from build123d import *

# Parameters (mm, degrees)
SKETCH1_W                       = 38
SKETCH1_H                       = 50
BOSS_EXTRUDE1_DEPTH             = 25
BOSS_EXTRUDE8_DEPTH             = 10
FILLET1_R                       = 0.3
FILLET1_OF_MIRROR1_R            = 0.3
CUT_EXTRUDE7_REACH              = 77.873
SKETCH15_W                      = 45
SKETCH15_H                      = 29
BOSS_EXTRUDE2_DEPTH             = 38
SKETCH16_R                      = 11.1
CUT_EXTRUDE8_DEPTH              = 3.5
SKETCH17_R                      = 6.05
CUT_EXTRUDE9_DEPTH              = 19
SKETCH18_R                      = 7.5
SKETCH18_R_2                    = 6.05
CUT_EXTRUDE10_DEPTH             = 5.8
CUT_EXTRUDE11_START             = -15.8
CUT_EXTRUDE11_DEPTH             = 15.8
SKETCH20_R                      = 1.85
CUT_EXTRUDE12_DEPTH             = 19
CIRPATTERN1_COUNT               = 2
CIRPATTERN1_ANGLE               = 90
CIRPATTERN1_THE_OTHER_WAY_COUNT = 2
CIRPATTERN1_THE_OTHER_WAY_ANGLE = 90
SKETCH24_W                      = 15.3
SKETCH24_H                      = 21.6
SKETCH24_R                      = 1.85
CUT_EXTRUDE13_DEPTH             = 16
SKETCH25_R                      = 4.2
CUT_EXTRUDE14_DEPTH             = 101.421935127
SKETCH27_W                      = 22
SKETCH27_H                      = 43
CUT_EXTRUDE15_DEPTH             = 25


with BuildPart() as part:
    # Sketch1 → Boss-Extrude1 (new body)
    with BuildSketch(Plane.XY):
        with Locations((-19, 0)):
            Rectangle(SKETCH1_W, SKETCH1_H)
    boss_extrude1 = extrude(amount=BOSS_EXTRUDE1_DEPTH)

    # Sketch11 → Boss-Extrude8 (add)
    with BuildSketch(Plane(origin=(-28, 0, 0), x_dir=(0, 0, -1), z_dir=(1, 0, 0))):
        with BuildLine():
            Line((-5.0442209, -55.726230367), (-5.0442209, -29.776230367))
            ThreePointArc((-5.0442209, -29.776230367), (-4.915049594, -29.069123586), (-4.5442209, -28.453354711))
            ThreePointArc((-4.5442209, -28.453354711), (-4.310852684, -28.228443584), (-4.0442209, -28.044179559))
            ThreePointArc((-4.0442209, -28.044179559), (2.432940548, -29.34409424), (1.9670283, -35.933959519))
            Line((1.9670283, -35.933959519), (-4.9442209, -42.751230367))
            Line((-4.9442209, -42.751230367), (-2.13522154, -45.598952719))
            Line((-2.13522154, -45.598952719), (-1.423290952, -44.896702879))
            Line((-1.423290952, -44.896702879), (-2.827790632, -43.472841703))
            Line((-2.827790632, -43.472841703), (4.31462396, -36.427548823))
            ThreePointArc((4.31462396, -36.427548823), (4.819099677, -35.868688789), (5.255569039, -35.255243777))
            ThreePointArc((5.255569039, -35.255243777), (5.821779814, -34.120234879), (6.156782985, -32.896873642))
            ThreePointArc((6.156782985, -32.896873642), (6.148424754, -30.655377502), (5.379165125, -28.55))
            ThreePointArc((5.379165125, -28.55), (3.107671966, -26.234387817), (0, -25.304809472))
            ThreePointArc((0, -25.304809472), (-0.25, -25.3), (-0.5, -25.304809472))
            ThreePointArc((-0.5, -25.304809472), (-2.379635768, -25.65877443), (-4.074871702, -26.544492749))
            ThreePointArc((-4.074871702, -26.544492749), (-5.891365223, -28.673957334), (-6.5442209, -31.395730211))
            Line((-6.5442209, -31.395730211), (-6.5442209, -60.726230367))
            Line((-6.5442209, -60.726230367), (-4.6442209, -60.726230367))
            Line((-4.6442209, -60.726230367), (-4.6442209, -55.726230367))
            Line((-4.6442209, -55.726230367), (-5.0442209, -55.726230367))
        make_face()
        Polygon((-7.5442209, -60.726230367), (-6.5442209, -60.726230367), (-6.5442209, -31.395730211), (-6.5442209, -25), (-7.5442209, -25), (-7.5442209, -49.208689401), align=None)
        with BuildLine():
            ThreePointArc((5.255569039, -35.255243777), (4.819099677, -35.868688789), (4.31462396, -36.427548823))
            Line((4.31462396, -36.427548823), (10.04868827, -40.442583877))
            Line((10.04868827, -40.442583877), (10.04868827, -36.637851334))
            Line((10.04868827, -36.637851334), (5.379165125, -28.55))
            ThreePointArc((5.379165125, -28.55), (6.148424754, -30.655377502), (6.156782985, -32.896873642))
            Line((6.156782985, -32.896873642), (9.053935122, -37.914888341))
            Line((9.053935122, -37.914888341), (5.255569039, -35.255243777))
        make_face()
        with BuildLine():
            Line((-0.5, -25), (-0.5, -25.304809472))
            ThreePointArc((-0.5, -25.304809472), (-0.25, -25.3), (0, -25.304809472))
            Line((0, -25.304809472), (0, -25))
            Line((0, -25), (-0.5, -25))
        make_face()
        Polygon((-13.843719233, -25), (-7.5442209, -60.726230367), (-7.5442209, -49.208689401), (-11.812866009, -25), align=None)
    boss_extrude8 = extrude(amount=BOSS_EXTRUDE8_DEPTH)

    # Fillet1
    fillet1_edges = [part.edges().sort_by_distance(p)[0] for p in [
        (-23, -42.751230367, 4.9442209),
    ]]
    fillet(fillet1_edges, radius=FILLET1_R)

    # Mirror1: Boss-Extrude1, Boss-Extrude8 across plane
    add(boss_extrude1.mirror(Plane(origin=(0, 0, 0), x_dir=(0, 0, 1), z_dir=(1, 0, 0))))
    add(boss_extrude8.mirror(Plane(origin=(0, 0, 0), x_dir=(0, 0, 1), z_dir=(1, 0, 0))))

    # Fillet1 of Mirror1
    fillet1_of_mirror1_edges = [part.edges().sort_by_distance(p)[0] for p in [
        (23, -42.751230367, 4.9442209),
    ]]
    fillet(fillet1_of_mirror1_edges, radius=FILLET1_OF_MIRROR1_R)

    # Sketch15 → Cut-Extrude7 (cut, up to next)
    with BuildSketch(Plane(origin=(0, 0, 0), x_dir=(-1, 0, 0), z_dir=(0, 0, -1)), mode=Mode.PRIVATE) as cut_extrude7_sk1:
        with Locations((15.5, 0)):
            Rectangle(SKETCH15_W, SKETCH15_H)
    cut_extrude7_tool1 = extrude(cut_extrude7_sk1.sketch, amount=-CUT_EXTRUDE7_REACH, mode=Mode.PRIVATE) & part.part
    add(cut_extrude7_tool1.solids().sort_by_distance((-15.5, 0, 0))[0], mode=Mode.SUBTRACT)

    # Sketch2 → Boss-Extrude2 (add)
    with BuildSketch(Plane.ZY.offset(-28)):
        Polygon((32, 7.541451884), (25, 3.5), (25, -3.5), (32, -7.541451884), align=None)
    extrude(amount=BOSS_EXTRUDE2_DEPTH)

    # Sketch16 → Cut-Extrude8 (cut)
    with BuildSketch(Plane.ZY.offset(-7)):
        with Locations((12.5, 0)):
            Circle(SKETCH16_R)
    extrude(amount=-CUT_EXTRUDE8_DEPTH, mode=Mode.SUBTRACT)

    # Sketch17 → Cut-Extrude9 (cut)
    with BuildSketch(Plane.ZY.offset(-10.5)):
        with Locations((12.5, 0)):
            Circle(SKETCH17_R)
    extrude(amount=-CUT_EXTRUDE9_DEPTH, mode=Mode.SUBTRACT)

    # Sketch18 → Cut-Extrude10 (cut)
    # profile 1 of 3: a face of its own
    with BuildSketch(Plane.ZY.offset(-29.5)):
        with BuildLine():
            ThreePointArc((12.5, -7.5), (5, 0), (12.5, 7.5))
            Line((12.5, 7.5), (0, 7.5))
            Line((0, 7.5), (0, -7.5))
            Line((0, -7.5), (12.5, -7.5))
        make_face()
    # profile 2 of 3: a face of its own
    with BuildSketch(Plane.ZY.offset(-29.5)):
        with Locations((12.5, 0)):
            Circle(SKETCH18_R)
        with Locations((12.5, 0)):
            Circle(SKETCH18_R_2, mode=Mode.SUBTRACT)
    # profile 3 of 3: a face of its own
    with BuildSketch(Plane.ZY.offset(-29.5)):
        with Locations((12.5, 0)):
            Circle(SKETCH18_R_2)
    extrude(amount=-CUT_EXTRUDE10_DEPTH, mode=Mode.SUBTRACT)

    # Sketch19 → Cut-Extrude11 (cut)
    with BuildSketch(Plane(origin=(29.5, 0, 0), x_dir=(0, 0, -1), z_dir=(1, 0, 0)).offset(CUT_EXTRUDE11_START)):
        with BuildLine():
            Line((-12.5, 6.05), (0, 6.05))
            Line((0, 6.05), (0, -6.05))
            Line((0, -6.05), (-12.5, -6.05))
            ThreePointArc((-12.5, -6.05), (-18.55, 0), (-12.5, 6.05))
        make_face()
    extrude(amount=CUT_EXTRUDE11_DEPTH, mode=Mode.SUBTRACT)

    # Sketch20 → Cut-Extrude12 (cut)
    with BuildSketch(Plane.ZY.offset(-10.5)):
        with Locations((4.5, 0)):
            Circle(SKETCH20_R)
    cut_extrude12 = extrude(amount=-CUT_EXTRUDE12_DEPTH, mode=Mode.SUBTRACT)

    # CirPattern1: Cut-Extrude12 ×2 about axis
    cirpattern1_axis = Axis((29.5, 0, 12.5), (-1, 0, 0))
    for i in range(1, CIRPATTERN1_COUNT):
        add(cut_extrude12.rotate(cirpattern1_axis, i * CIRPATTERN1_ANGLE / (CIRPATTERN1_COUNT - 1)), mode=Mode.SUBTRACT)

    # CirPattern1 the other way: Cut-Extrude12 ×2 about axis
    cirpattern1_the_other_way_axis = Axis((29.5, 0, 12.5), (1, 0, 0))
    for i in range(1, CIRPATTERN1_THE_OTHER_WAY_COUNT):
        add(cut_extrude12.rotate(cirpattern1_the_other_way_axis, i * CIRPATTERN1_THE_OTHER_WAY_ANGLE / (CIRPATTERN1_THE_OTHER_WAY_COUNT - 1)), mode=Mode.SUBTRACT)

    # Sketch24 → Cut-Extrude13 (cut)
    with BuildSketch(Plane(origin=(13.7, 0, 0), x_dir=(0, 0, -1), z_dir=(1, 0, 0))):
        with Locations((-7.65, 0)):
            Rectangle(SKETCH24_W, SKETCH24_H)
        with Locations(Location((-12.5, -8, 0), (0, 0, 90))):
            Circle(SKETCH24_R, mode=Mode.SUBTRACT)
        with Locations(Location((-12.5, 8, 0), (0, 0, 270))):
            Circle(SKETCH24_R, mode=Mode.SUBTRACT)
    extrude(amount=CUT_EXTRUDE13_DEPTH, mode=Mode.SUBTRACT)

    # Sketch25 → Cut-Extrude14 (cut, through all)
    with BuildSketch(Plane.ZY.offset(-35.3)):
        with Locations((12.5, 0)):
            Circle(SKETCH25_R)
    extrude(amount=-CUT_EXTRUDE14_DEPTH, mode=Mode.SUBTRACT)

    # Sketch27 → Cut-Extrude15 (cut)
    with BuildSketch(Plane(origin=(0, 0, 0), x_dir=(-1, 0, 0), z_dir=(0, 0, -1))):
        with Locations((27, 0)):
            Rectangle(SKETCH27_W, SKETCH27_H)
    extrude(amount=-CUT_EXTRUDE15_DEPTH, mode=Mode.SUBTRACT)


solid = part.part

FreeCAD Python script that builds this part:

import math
import FreeCAD as App
import Part
import Sketcher
Q = App.Units.Quantity


def edges_at(feature, points):
    """Names of the edges that pass closest to the given points."""
    edges = feature.Shape.Edges
    near = lambda p: min(range(len(edges)), key=lambda i: edges[i].distToShape(Part.Vertex(*p))[0])
    return sorted({f"Edge{near(p) + 1}" for p in points})

doc = App.newDocument("Part")
params = doc.addObject("Spreadsheet::Sheet", "Params")
for row, (alias, value) in enumerate([
    ("sketch1_width", "38 mm"),
    ("sketch1_height", "50 mm"),
    ("pad1_length", "25 mm"),
    ("sketch2_radius", "2 mm"),
    ("sketch2_radius2", "5 mm"),
    ("sketch2_radius3", "6 mm"),
    ("sketch2_radius4", "6.5 mm"),
    ("sketch2_width", "5 mm"),
    ("pad2_length", "10 mm"),
    ("fillet_radius", "0.3 mm"),
    ("fillet2_radius", "0.3 mm"),
    ("sketch3_width", "45 mm"),
    ("sketch3_height", "29 mm"),
    ("sketch4_width", "7 mm"),
    ("pad3_length", "38 mm"),
    ("sketch5_diameter", "22.2 mm"),
    ("pocket2_length", "3.5 mm"),
    ("sketch6_diameter", "12.1 mm"),
    ("pocket3_length", "19 mm"),
    ("sketch7_radius", "7.5 mm"),
    ("sketch7_height", "12.5 mm"),
    ("pocket4_length", "5.8 mm"),
    ("sketch8_radius", "6.05 mm"),
    ("sketch8_height", "12.5 mm"),
    ("pocket5_length", "15.8 mm"),
    ("sketch9_diameter", "3.7 mm"),
    ("pocket6_length", "19 mm"),
    ("sketch10_diameter", "3.7 mm"),
    ("sketch10_width", "21.6 mm"),
    ("sketch10_height", "15.3 mm"),
    ("pocket7_length", "16 mm"),
    ("sketch11_diameter", "8.4 mm"),
    ("sketch12_width", "22 mm"),
    ("sketch12_height", "43 mm"),
    ("pocket9_length", "25 mm"),
], start=1):
    params.set(f"A{row}", alias)
    params.set(f"B{row}", "=" + value)
    params.setAlias(f"B{row}", alias)

body = doc.addObject("PartDesign::Body", "Body")

# Sketch on XY plane
sketch1 = body.newObject("Sketcher::SketchObject", "Sketch")
sketch1.AttachmentSupport = (doc.getObject("XY_Plane"), [""])
sketch1.MapMode = "FlatFace"
sketch1.addGeometry(Part.LineSegment(App.Vector(-38, 25, 0), App.Vector(-38, -25, 0)), False)
sketch1.addGeometry(Part.LineSegment(App.Vector(-38, -25, 0), App.Vector(0, -25, 0)), False)
sketch1.addGeometry(Part.LineSegment(App.Vector(0, -25, 0), App.Vector(0, 25, 0)), False)
sketch1.addGeometry(Part.LineSegment(App.Vector(0, 25, 0), App.Vector(-38, 25, 0)), False)
sketch1.addConstraint(Sketcher.Constraint("Coincident", 0, 2, 1, 1))
sketch1.addConstraint(Sketcher.Constraint("Coincident", 1, 2, 2, 1))
sketch1.addConstraint(Sketcher.Constraint("Coincident", 2, 2, 3, 1))
sketch1.addConstraint(Sketcher.Constraint("Coincident", 3, 2, 0, 1))
sketch1.addConstraint(Sketcher.Constraint("Vertical", 0))
sketch1.addConstraint(Sketcher.Constraint("Horizontal", 1))
sketch1.addConstraint(Sketcher.Constraint("Vertical", 2))
sketch1.addConstraint(Sketcher.Constraint("Horizontal", 3))
sketch1.addConstraint(Sketcher.Constraint("Symmetric", 1, 2, 2, 2, -1, 1))
sketch1.addConstraint(Sketcher.Constraint("DistanceX", 1, 1, 1, 2, 38.0))
sketch1.addConstraint(Sketcher.Constraint("DistanceY", 0, 2, 0, 1, 50.0))
sketch1.setExpression("Constraints[9]", "Params.sketch1_width")
sketch1.setExpression("Constraints[10]", "Params.sketch1_height")
pad1 = body.newObject("PartDesign::Pad", "Pad")
pad1.Profile = sketch1
pad1.setExpression("Length", "Params.pad1_length")

# Sketch on YZ plane
sketch2 = body.newObject("Sketcher::SketchObject", "Sketch001")
sketch2.AttachmentSupport = (doc.getObject("YZ_Plane"), [""])
sketch2.MapMode = "FlatFace"
sketch2.AttachmentOffset = App.Placement(App.Vector(0, 0, -28), App.Rotation())
sketch2.addGeometry(Part.LineSegment(App.Vector(-55.73, 5.04, 0), App.Vector(-29.78, 5.04, 0)), False)
sketch2.addGeometry(Part.ArcOfCircle(Part.Circle(App.Vector(-29.78, 3.04, 0), App.Vector(0, 0, 1), 2), math.radians(49), math.radians(90)), False)
sketch2.addGeometry(Part.ArcOfCircle(Part.Circle(App.Vector(-29.78, 3.04, 0), App.Vector(0, 0, 1), 2), math.radians(30), math.radians(48.59)), False)
sketch2.addGeometry(Part.ArcOfCircle(Part.Circle(App.Vector(-32.37, 1.54, 0), App.Vector(0, 0, 1), 5), math.radians(-135), math.radians(30)), False)
sketch2.addGeometry(Part.LineSegment(App.Vector(-35.93, -1.97, 0), App.Vector(-42.75, 4.94, 0)), False)
sketch2.addGeometry(Part.LineSegment(App.Vector(-42.75, 4.94, 0), App.Vector(-45.6, 2.14, 0)), False)
sketch2.addGeometry(Part.LineSegment(App.Vector(-45.6, 2.14, 0), App.Vector(-44.9, 1.42, 0)), False)
sketch2.addGeometry(Part.LineSegment(App.Vector(-44.9, 1.42, 0), App.Vector(-43.47, 2.83, 0)), False)
sketch2.addGeometry(Part.LineSegment(App.Vector(-43.47, 2.83, 0), App.Vector(-36.43, -4.31, 0)), False)
sketch2.addGeometry(Part.LineSegment(App.Vector(-36.43, -4.31, 0), App.Vector(-40.44, -10.05, 0)), False)
sketch2.addGeometry(Part.LineSegment(App.Vector(-40.44, -10.05, 0), App.Vector(-36.64, -10.05, 0)), False)
sketch2.addGeometry(Part.LineSegment(App.Vector(-36.64, -10.05, 0), App.Vector(-28.55, -5.38, 0)), False)
sketch2.addGeometry(Part.ArcOfCircle(Part.Circle(App.Vector(-31.8, 0.25, 0), App.Vector(0, 0, 1), 6.5), math.radians(-60), math.radians(-2)), False)
sketch2.addGeometry(Part.LineSegment(App.Vector(-25.3, 0, 0), App.Vector(-25, 0, 0)), False)
sketch2.addGeometry(Part.LineSegment(App.Vector(-25, 0, 0), App.Vector(-25, 0.5, 0)), False)
sketch2.addGeometry(Part.LineSegment(App.Vector(-25, 0.5, 0), App.Vector(-25.3, 0.5, 0)), False)
sketch2.addGeometry(Part.ArcOfCircle(Part.Circle(App.Vector(-31.8, 0.25, 0), App.Vector(0, 0, 1), 6.5), math.radians(2), math.radians(36)), False)
sketch2.addGeometry(Part.ArcOfCircle(Part.Circle(App.Vector(-31.4, 0.54, 0), App.Vector(0, 0, 1), 6), math.radians(36), math.radians(90)), False)
sketch2.addGeometry(Part.LineSegment(App.Vector(-31.4, 6.54, 0), App.Vector(-25, 6.54, 0)), False)
sketch2.addGeometry(Part.LineSegment(App.Vector(-25, 6.54, 0), App.Vector(-25, 7.54, 0)), False)
sketch2.addGeometry(Part.LineSegment(App.Vector(-25, 7.54, 0), App.Vector(-49.21, 7.54, 0)), False)
sketch2.addGeometry(Part.LineSegment(App.Vector(-49.21, 7.54, 0), App.Vector(-25, 11.81, 0)), False)
sketch2.addGeometry(Part.LineSegment(App.Vector(-25, 11.81, 0), App.Vector(-25, 13.84, 0)), False)
sketch2.addGeometry(Part.LineSegment(App.Vector(-25, 13.84, 0), App.Vector(-60.73, 7.54, 0)), False)
sketch2.addGeometry(Part.LineSegment(App.Vector(-60.73, 7.54, 0), App.Vector(-60.73, 4.64, 0)), False)
sketch2.addGeometry(Part.LineSegment(App.Vector(-60.73, 4.64, 0), App.Vector(-55.73, 4.64, 0)), False)
sketch2.addGeometry(Part.LineSegment(App.Vector(-55.73, 4.64, 0), App.Vector(-55.73, 5.04, 0)), False)
sketch2.addGeometry(Part.ArcOfCircle(Part.Circle(App.Vector(-31.8, 0.25, 0), App.Vector(0, 0, 1), 6.5), math.radians(-122), math.radians(-100)), False)
sketch2.addGeometry(Part.LineSegment(App.Vector(-32.9, -6.16, 0), App.Vector(-37.91, -9.05, 0)), False)
sketch2.addGeometry(Part.LineSegment(App.Vector(-37.91, -9.05, 0), App.Vector(-35.26, -5.26, 0)), False)
sketch2.addConstraint(Sketcher.Constraint("Tangent", 0, 2, 1, 2))
sketch2.addConstraint(Sketcher.Constraint("Tangent", 1, 1, 2, 2))
sketch2.addConstraint(Sketcher.Constraint("Tangent", 2, 1, 3, 2))
sketch2.addConstraint(Sketcher.Constraint("Tangent", 3, 1, 4, 1))
sketch2.addConstraint(Sketcher.Constraint("Coincident", 4, 2, 5, 1))
sketch2.addConstraint(Sketcher.Constraint("Coincident", 5, 2, 6, 1))
sketch2.addConstraint(Sketcher.Constraint("Coincident", 6, 2, 7, 1))
sketch2.addConstraint(Sketcher.Constraint("Coincident", 7, 2, 8, 1))
sketch2.addConstraint(Sketcher.Constraint("Coincident", 8, 2, 9, 1))
sketch2.addConstraint(Sketcher.Constraint("Coincident", 9, 2, 10, 1))
sketch2.addConstraint(Sketcher.Constraint("Coincident", 10, 2, 11, 1))
sketch2.addConstraint(Sketcher.Constraint("Tangent", 11, 2, 12, 1))
sketch2.addConstraint(Sketcher.Constraint("Coincident", 12, 2, 13, 1))
sketch2.addConstraint(Sketcher.Constraint("Coincident", 13, 2, 14, 1))
sketch2.addConstraint(Sketcher.Constraint("Coincident", 14, 2, 15, 1))
sketch2.addConstraint(Sketcher.Constraint("Coincident", 15, 2, 16, 1))
sketch2.addConstraint(Sketcher.Constraint("Tangent", 16, 2, 17, 1))
sketch2.addConstraint(Sketcher.Constraint("Tangent", 17, 2, 18, 1))
sketch2.addConstraint(Sketcher.Constraint("Coincident", 18, 2, 19, 1))
sketch2.addConstraint(Sketcher.Constraint("Coincident", 19, 2, 20, 1))
sketch2.addConstraint(Sketcher.Constraint("Coincident", 20, 2, 21, 1))
sketch2.addConstraint(Sketcher.Constraint("Coincident", 21, 2, 22, 1))
sketch2.addConstraint(Sketcher.Constraint("Coincident", 22, 2, 23, 1))
sketch2.addConstraint(Sketcher.Constraint("Coincident", 23, 2, 24, 1))
sketch2.addConstraint(Sketcher.Constraint("Coincident", 24, 2, 25, 1))
sketch2.addConstraint(Sketcher.Constraint("Coincident", 25, 2, 26, 1))
sketch2.addConstraint(Sketcher.Constraint("Coincident", 26, 2, 0, 1))
sketch2.addConstraint(Sketcher.Constraint("Coincident", 27, 2, 28, 1))
sketch2.addConstraint(Sketcher.Constraint("Coincident", 28, 2, 29, 1))
sketch2.addConstraint(Sketcher.Constraint("Coincident", 29, 2, 27, 1))
sketch2.addConstraint(Sketcher.Constraint("Horizontal", 0))
sketch2.addConstraint(Sketcher.Constraint("Horizontal", 10))
sketch2.addConstraint(Sketcher.Constraint("Horizontal", 13))
sketch2.addConstraint(Sketcher.Constraint("Vertical", 14))
sketch2.addConstraint(Sketcher.Constraint("Horizontal", 15))
sketch2.addConstraint(Sketcher.Constraint("Horizontal", 18))
sketch2.addConstraint(Sketcher.Constraint("Vertical", 19))
sketch2.addConstraint(Sketcher.Constraint("Horizontal", 20))
sketch2.addConstraint(Sketcher.Constraint("Vertical", 22))
sketch2.addConstraint(Sketcher.Constraint("Vertical", 24))
sketch2.addConstraint(Sketcher.Constraint("Horizontal", 25))
sketch2.addConstraint(Sketcher.Constraint("Vertical", 26))
sketch2.addConstraint(Sketcher.Constraint("Coincident", 16, 3, 12, 3))
sketch2.addConstraint(Sketcher.Constraint("Coincident", 27, 3, 12, 3))
sketch2.addConstraint(Sketcher.Constraint("Equal", 1, 2))
sketch2.addConstraint(Sketcher.Constraint("Equal", 12, 16))
sketch2.addConstraint(Sketcher.Constraint("Equal", 16, 27))
sketch2.addConstraint(Sketcher.Constraint("PointOnObject", 12, 2, -1))
sketch2.addConstraint(Sketcher.Constraint("Perpendicular", 4, 5))
sketch2.addConstraint(Sketcher.Constraint("Perpendicular", 5, 6))
sketch2.addConstraint(Sketcher.Constraint("Perpendicular", 6, 7))
sketch2.addConstraint(Sketcher.Constraint("Perpendicular", 7, 8))
sketch2.addConstraint(Sketcher.Constraint("Parallel", 21, 23))
sketch2.addConstraint(Sketcher.Constraint("Parallel", 11, 28))
sketch2.addConstraint(Sketcher.Constraint("Parallel", 9, 29))
sketch2.addConstraint(Sketcher.Constraint("Horizontal", 20, 2, 23, 2))
sketch2.addConstraint(Sketcher.Constraint("Vertical", 12, 2, 15, 2))
sketch2.addConstraint(Sketcher.Constraint("Vertical", 14, 2, 18, 2))
sketch2.addConstraint(Sketcher.Constraint("Vertical", 19, 2, 21, 2))
sketch2.addConstraint(Sketcher.Constraint("Radius", 1, 2.0))
sketch2.addConstraint(Sketcher.Constraint("Radius", 3, 5.0))
sketch2.addConstraint(Sketcher.Constraint("Radius", 17, 6.0))
sketch2.addConstraint(Sketcher.Constraint("Radius", 12, 6.5))
sketch2.addConstraint(Sketcher.Constraint("DistanceX", 25, 1, 25, 2, 5.0))
sketch2.addConstraint(Sketcher.Constraint("DistanceY", 19, 1, 19, 2, 1.0))
sketch2.addConstraint(Sketcher.Constraint("Angle", 9, Q("-125 deg")))
sketch2.addConstraint(Sketcher.Constraint("Angle", 11, Q("30 deg")))
sketch2.addConstraint(Sketcher.Constraint("Angle", 21, Q("10 deg")))
sketch2.addConstraint(Sketcher.Constraint("Distance", 5, 4.0))
sketch2.addConstraint(Sketcher.Constraint("Distance", 6, 1.0))
sketch2.addConstraint(Sketcher.Constraint("Distance", 7, 2.0))
sketch2.addConstraint(Sketcher.Constraint("Distance", 9, 7.0))
sketch2.addConstraint(Sketcher.Constraint("DistanceY", 14, 1, 14, 2, 0.5))
sketch2.addConstraint(Sketcher.Constraint("DistanceY", 24, 2, 24, 1, 2.9))
sketch2.addConstraint(Sketcher.Constraint("DistanceY", 26, 1, 26, 2, 0.4))
sketch2.addConstraint(Sketcher.Constraint("DistanceX", 13, 2, -1, 1, 25.0))
sketch2.addConstraint(Sketcher.Constraint("DistanceY", 17, 3, 3, 3, 1.0))
sketch2.addConstraint(Sketcher.Constraint("DistanceY", 3, 3, 1, 1, 3.0))
sketch2.addConstraint(Sketcher.Constraint("DistanceX", 0, 1, 0, 2, 25.95))
sketch2.addConstraint(Sketcher.Constraint("DistanceX", 12, 3, -1, 1, 31.8))
sketch2.addConstraint(Sketcher.Constraint("DistanceY", 3, 3, 4, 2, 3.4))
sketch2.addConstraint(Sketcher.Constraint("DistanceY", 5, 2, 4, 2, 2.808999))
sketch2.addConstraint(Sketcher.Constraint("DistanceX", 18, 1, 18, 2, 6.39573))
sketch2.addConstraint(Sketcher.Constraint("DistanceX", 20, 2, 20, 1, 24.208689))
sketch2.addConstraint(Sketcher.Constraint("DistanceX", 17, 3, 1, 3, 1.6195))
sketch2.addConstraint(Sketcher.Constraint("Distance", 8, 10.032459))
sketch2.addConstraint(Sketcher.Constraint("Distance", 29, 4.636949))
sketch2.addConstraint(Sketcher.Constraint("DistanceX", 28, 2, -1, 1, 37.914888))
sketch2.setExpression("Constraints[59]", "Params.sketch2_radius")
sketch2.setExpression("Constraints[60]", "Params.sketch2_radius2")
sketch2.setExpression("Constraints[61]", "Params.sketch2_radius3")
sketch2.setExpression("Constraints[62]", "Params.sketch2_radius4")
sketch2.setExpression("Constraints[63]", "Params.sketch2_width")
pad2 = body.newObject("PartDesign::Pad", "Pad001")
pad2.Profile = sketch2
pad2.setExpression("Length", "Params.pad2_length")
doc.recompute()

fillet = body.newObject("PartDesign::Fillet", "Fillet")
fillet.Base = (pad2, edges_at(pad2, [(-23, -42.751, 4.944)]))
fillet.setExpression("Radius", "Params.fillet_radius")
doc.recompute()

mirrored = body.newObject("PartDesign::Mirrored", "Mirrored")
mirrored.Originals = [pad1, pad2]
mirrored.MirrorPlane = (doc.getObject("YZ_Plane"), [""])
body.Tip = mirrored
doc.recompute()

fillet2 = body.newObject("PartDesign::Fillet", "Fillet001")
fillet2.Base = (mirrored, edges_at(mirrored, [(23, -42.751, 4.944)]))
fillet2.setExpression("Radius", "Params.fillet2_radius")

# Sketch on XY plane
sketch3 = body.newObject("Sketcher::SketchObject", "Sketch002")
sketch3.AttachmentSupport = (doc.getObject("XY_Plane"), [""])
sketch3.MapMode = "FlatFace"
sketch3.addGeometry(Part.LineSegment(App.Vector(7, 14, 0), App.Vector(7, -14, 0)), False)
sketch3.addGeometry(Part.LineSegment(App.Vector(7, -14, 0), App.Vector(-38, -14, 0)), False)
sketch3.addGeometry(Part.LineSegment(App.Vector(-38, -14, 0), App.Vector(-38, 14, 0)), False)
sketch3.addGeometry(Part.LineSegment(App.Vector(-38, 14, 0), App.Vector(7, 14, 0)), False)
sketch3.addConstraint(Sketcher.Constraint("Coincident", 0, 2, 1, 1))
sketch3.addConstraint(Sketcher.Constraint("Coincident", 1, 2, 2, 1))
sketch3.addConstraint(Sketcher.Constraint("Coincident", 2, 2, 3, 1))
sketch3.addConstraint(Sketcher.Constraint("Coincident", 3, 2, 0, 1))
sketch3.addConstraint(Sketcher.Constraint("Vertical", 0))
sketch3.addConstraint(Sketcher.Constraint("Horizontal", 1))
sketch3.addConstraint(Sketcher.Constraint("Vertical", 2))
sketch3.addConstraint(Sketcher.Constraint("Horizontal", 3))
sketch3.addConstraint(Sketcher.Constraint("DistanceX", 1, 2, 1, 1, 45.0))
sketch3.addConstraint(Sketcher.Constraint("DistanceY", 0, 2, 0, 1, 29.0))
sketch3.addConstraint(Sketcher.Constraint("DistanceX", -1, 1, 0, 2, 7.0))
sketch3.addConstraint(Sketcher.Constraint("DistanceY", 0, 2, -1, 1, 14.5))
sketch3.setExpression("Constraints[8]", "Params.sketch3_width")
sketch3.setExpression("Constraints[9]", "Params.sketch3_height")
pocket1 = body.newObject("PartDesign::Pocket", "Pocket")
pocket1.Profile = sketch3
pocket1.Type = "UpToFirst"
pocket1.Reversed = True

# Sketch on YZ plane
sketch4 = body.newObject("Sketcher::SketchObject", "Sketch003")
sketch4.AttachmentSupport = (doc.getObject("YZ_Plane"), [""])
sketch4.MapMode = "FlatFace"
sketch4.AttachmentOffset = App.Placement(App.Vector(0, 0, 28), App.Rotation())
sketch4.addGeometry(Part.LineSegment(App.Vector(8, 32, 0), App.Vector(4, 25, 0)), False)
sketch4.addGeometry(Part.LineSegment(App.Vector(4, 25, 0), App.Vector(-4, 25, 0)), False)
sketch4.addGeometry(Part.LineSegment(App.Vector(-4, 25, 0), App.Vector(-8, 32, 0)), False)
sketch4.addGeometry(Part.LineSegment(App.Vector(-8, 32, 0), App.Vector(8, 32, 0)), False)
sketch4.addConstraint(Sketcher.Constraint("Coincident", 0, 2, 1, 1))
sketch4.addConstraint(Sketcher.Constraint("Coincident", 1, 2, 2, 1))
sketch4.addConstraint(Sketcher.Constraint("Coincident", 2, 2, 3, 1))
sketch4.addConstraint(Sketcher.Constraint("Coincident", 3, 2, 0, 1))
sketch4.addConstraint(Sketcher.Constraint("Horizontal", 1))
sketch4.addConstraint(Sketcher.Constraint("Horizontal", 3))
sketch4.addConstraint(Sketcher.Constraint("Equal", 0, 2))
sketch4.addConstraint(Sketcher.Constraint("DistanceX", 1, 2, 1, 1, 7.0))
sketch4.addConstraint(Sketcher.Constraint("Angle", 0, Q("-120 deg")))
sketch4.addConstraint(Sketcher.Constraint("DistanceY", -1, 1, 0, 2, 25.0))
sketch4.addConstraint(Sketcher.Constraint("DistanceY", -1, 1, 2, 2, 32.0))
sketch4.addConstraint(Sketcher.Constraint("DistanceX", -1, 1, 0, 2, 3.5))
sketch4.setExpression("Constraints[7]", "Params.sketch4_width")
pad3 = body.newObject("PartDesign::Pad", "Pad002")
pad3.Profile = sketch4
pad3.setExpression("Length", "Params.pad3_length")
pad3.Reversed = True

# Sketch on YZ plane
sketch5 = body.newObject("Sketcher::SketchObject", "Sketch004")
sketch5.AttachmentSupport = (doc.getObject("YZ_Plane"), [""])
sketch5.MapMode = "FlatFace"
sketch5.AttachmentOffset = App.Placement(App.Vector(0, 0, 7), App.Rotation())
sketch5.addGeometry(Part.Circle(App.Vector(0, 12, 0), App.Vector(0, 0, 1), 11), False)
sketch5.addConstraint(Sketcher.Constraint("PointOnObject", 0, 3, -2))
sketch5.addConstraint(Sketcher.Constraint("Diameter", 0, 22.2))
sketch5.addConstraint(Sketcher.Constraint("DistanceY", -1, 1, 0, 3, 12.5))
sketch5.setExpression("Constraints[1]", "Params.sketch5_diameter")
pocket2 = body.newObject("PartDesign::Pocket", "Pocket001")
pocket2.Profile = sketch5
pocket2.setExpression("Length", "Params.pocket2_length")
pocket2.Reversed = True

# Sketch on YZ plane
sketch6 = body.newObject("Sketcher::SketchObject", "Sketch005")
sketch6.AttachmentSupport = (doc.getObject("YZ_Plane"), [""])
sketch6.MapMode = "FlatFace"
sketch6.AttachmentOffset = App.Placement(App.Vector(0, 0, 10.5), App.Rotation())
sketch6.addGeometry(Part.Circle(App.Vector(0, 12, 0), App.Vector(0, 0, 1), 6), False)
sketch6.addConstraint(Sketcher.Constraint("PointOnObject", 0, 3, -2))
sketch6.addConstraint(Sketcher.Constraint("Diameter", 0, 12.1))
sketch6.addConstraint(Sketcher.Constraint("DistanceY", -1, 1, 0, 3, 12.5))
sketch6.setExpression("Constraints[1]", "Params.sketch6_diameter")
pocket3 = body.newObject("PartDesign::Pocket", "Pocket002")
pocket3.Profile = sketch6
pocket3.setExpression("Length", "Params.pocket3_length")
pocket3.Reversed = True

# Sketch on YZ plane
sketch7 = body.newObject("Sketcher::SketchObject", "Sketch006")
sketch7.AttachmentSupport = (doc.getObject("YZ_Plane"), [""])
sketch7.MapMode = "FlatFace"
sketch7.AttachmentOffset = App.Placement(App.Vector(0, 0, 29.5), App.Rotation())
sketch7.addGeometry(Part.LineSegment(App.Vector(8, 12, 0), App.Vector(8, 0, 0)), False)
sketch7.addGeometry(Part.LineSegment(App.Vector(8, 0, 0), App.Vector(-8, 0, 0)), False)
sketch7.addGeometry(Part.LineSegment(App.Vector(-8, 0, 0), App.Vector(-8, 12, 0)), False)
sketch7.addGeometry(Part.ArcOfCircle(Part.Circle(App.Vector(0, 12, 0), App.Vector(0, 0, 1), 8), math.radians(0), math.radians(180)), False)
sketch7.addConstraint(Sketcher.Constraint("Coincident", 0, 2, 1, 1))
sketch7.addConstraint(Sketcher.Constraint("Coincident", 1, 2, 2, 1))
sketch7.addConstraint(Sketcher.Constraint("Tangent", 2, 2, 3, 2))
sketch7.addConstraint(Sketcher.Constraint("Tangent", 3, 1, 0, 1))
sketch7.addConstraint(Sketcher.Constraint("Vertical", 0))
sketch7.addConstraint(Sketcher.Constraint("Horizontal", 1))
sketch7.addConstraint(Sketcher.Constraint("Vertical", 2))
sketch7.addConstraint(Sketcher.Constraint("Symmetric", 0, 2, 1, 2, -1, 1))
sketch7.addConstraint(Sketcher.Constraint("Radius", 3, 7.5))
sketch7.addConstraint(Sketcher.Constraint("DistanceY", 0, 2, 0, 1, 12.5))
sketch7.setExpression("Constraints[8]", "Params.sketch7_radius")
sketch7.setExpression("Constraints[9]", "Params.sketch7_height")
pocket4 = body.newObject("PartDesign::Pocket", "Pocket003")
pocket4.Profile = sketch7
pocket4.setExpression("Length", "Params.pocket4_length")
pocket4.Reversed = True

# Sketch on YZ plane
sketch8 = body.newObject("Sketcher::SketchObject", "Sketch007")
sketch8.AttachmentSupport = (doc.getObject("YZ_Plane"), [""])
sketch8.MapMode = "FlatFace"
sketch8.AttachmentOffset = App.Placement(App.Vector(0, 0, 13.7), App.Rotation())
sketch8.addGeometry(Part.LineSegment(App.Vector(6, 0, 0), App.Vector(6, 12, 0)), False)
sketch8.addGeometry(Part.ArcOfCircle(Part.Circle(App.Vector(0, 12, 0), App.Vector(0, 0, 1), 6), math.radians(0), math.radians(180)), False)
sketch8.addGeometry(Part.LineSegment(App.Vector(-6, 12, 0), App.Vector(-6, 0, 0)), False)
sketch8.addGeometry(Part.LineSegment(App.Vector(-6, 0, 0), App.Vector(6, 0, 0)), False)
sketch8.addConstraint(Sketcher.Constraint("Tangent", 0, 2, 1, 1))
sketch8.addConstraint(Sketcher.Constraint("Tangent", 1, 2, 2, 1))
sketch8.addConstraint(Sketcher.Constraint("Coincident", 2, 2, 3, 1))
sketch8.addConstraint(Sketcher.Constraint("Coincident", 3, 2, 0, 1))
sketch8.addConstraint(Sketcher.Constraint("Vertical", 0))
sketch8.addConstraint(Sketcher.Constraint("Vertical", 2))
sketch8.addConstraint(Sketcher.Constraint("Horizontal", 3))
sketch8.addConstraint(Sketcher.Constraint("Symmetric", 2, 2, 3, 2, -1, 1))
sketch8.addConstraint(Sketcher.Constraint("Radius", 1, 6.05))
sketch8.addConstraint(Sketcher.Constraint("DistanceY", 0, 1, 0, 2, 12.5))
sketch8.setExpression("Constraints[8]", "Params.sketch8_radius")
sketch8.setExpression("Constraints[9]", "Params.sketch8_height")
pocket5 = body.newObject("PartDesign::Pocket", "Pocket004")
pocket5.Profile = sketch8
pocket5.setExpression("Length", "Params.pocket5_length")
pocket5.Reversed = True

# Sketch on YZ plane
sketch9 = body.newObject("Sketcher::SketchObject", "Sketch008")
sketch9.AttachmentSupport = (doc.getObject("YZ_Plane"), [""])
sketch9.MapMode = "FlatFace"
sketch9.AttachmentOffset = App.Placement(App.Vector(0, 0, 10.5), App.Rotation())
sketch9.addGeometry(Part.Circle(App.Vector(0, 4.5, 0), App.Vector(0, 0, 1), 1.9), False)
sketch9.addConstraint(Sketcher.Constraint("PointOnObject", 0, 3, -2))
sketch9.addConstraint(Sketcher.Constraint("Diameter", 0, 3.7))
sketch9.addConstraint(Sketcher.Constraint("DistanceY", -1, 1, 0, 3, 4.5))
sketch9.setExpression("Constraints[1]", "Params.sketch9_diameter")
pocket6 = body.newObject("PartDesign::Pocket", "Pocket005")
pocket6.Profile = sketch9
pocket6.setExpression("Length", "Params.pocket6_length")
pocket6.Reversed = True
doc.recompute()

datumline = body.newObject("PartDesign::Line", "DatumLine")
datumline.Placement = App.Placement(App.Vector(0, 0, 12.5), App.Rotation(App.Vector(0, 0, 1), App.Vector(-1, 0, 0)))
polarpattern = body.newObject("PartDesign::PolarPattern", "PolarPattern")
polarpattern.Originals = [pocket6]
polarpattern.Axis = (datumline, [""])
polarpattern.Angle = 90
polarpattern.Occurrences = 2
body.Tip = polarpattern
doc.recompute()

datumline2 = body.newObject("PartDesign::Line", "DatumLine001")
datumline2.Placement = App.Placement(App.Vector(0, 0, 12.5), App.Rotation(App.Vector(0, 0, 1), App.Vector(1, 0, 0)))
polarpattern2 = body.newObject("PartDesign::PolarPattern", "PolarPattern001")
polarpattern2.Originals = [pocket6]
polarpattern2.Axis = (datumline2, [""])
polarpattern2.Angle = 90
polarpattern2.Occurrences = 2
body.Tip = polarpattern2

# Sketch on YZ plane
sketch10 = body.newObject("Sketcher::SketchObject", "Sketch009")
sketch10.AttachmentSupport = (doc.getObject("YZ_Plane"), [""])
sketch10.MapMode = "FlatFace"
sketch10.AttachmentOffset = App.Placement(App.Vector(0, 0, 13.7), App.Rotation())
sketch10.addGeometry(Part.LineSegment(App.Vector(10.8, 15.3, 0), App.Vector(-10.8, 15.3, 0)), False)
sketch10.addGeometry(Part.LineSegment(App.Vector(-10.8, 15.3, 0), App.Vector(-10.8, 0, 0)), False)
sketch10.addGeometry(Part.LineSegment(App.Vector(-10.8, 0, 0), App.Vector(10.8, 0, 0)), False)
sketch10.addGeometry(Part.LineSegment(App.Vector(10.8, 0, 0), App.Vector(10.8, 15.3, 0)), False)
sketch10.addGeometry(Part.Circle(App.Vector(-8, 12.5, 0), App.Vector(0, 0, 1), 1.9), False)
sketch10.addGeometry(Part.Circle(App.Vector(8, 12.5, 0), App.Vector(0, 0, 1), 1.9), False)
sketch10.addConstraint(Sketcher.Constraint("Coincident", 0, 2, 1, 1))
sketch10.addConstraint(Sketcher.Constraint("Coincident", 1, 2, 2, 1))
sketch10.addConstraint(Sketcher.Constraint("Coincident", 2, 2, 3, 1))
sketch10.addConstraint(Sketcher.Constraint("Coincident", 3, 2, 0, 1))
sketch10.addConstraint(Sketcher.Constraint("Horizontal", 0))
sketch10.addConstraint(Sketcher.Constraint("Vertical", 1))
sketch10.addConstraint(Sketcher.Constraint("Horizontal", 2))
sketch10.addConstraint(Sketcher.Constraint("Vertical", 3))
sketch10.addConstraint(Sketcher.Constraint("Equal", 4, 5))
sketch10.addConstraint(Sketcher.Constraint("Symmetric", 1, 2, 2, 2, -1, 1))
sketch10.addConstraint(Sketcher.Constraint("Symmetric", 4, 3, 5, 3, -2))
sketch10.addConstraint(Sketcher.Constraint("Diameter", 4, 3.7))
sketch10.addConstraint(Sketcher.Constraint("DistanceX", 0, 2, 0, 1, 21.6))
sketch10.addConstraint(Sketcher.Constraint("DistanceY", 1, 2, 1, 1, 15.3))
sketch10.addConstraint(Sketcher.Constraint("DistanceX", 4, 3, -1, 1, 8.0))
sketch10.addConstraint(Sketcher.Constraint("DistanceY", -1, 1, 4, 3, 12.5))
sketch10.setExpression("Constraints[11]", "Params.sketch10_diameter")
sketch10.setExpression("Constraints[12]", "Params.sketch10_width")
sketch10.setExpression("Constraints[13]", "Params.sketch10_height")
pocket7 = body.newObject("PartDesign::Pocket", "Pocket006")
pocket7.Profile = sketch10
pocket7.setExpression("Length", "Params.pocket7_length")
pocket7.Reversed = True

# Sketch on YZ plane
sketch11 = body.newObject("Sketcher::SketchObject", "Sketch010")
sketch11.AttachmentSupport = (doc.getObject("YZ_Plane"), [""])
sketch11.MapMode = "FlatFace"
sketch11.AttachmentOffset = App.Placement(App.Vector(0, 0, 35.3), App.Rotation())
sketch11.addGeometry(Part.Circle(App.Vector(0, 12.5, 0), App.Vector(0, 0, 1), 4.2), False)
sketch11.addConstraint(Sketcher.Constraint("PointOnObject", 0, 3, -2))
sketch11.addConstraint(Sketcher.Constraint("Diameter", 0, 8.4))
sketch11.addConstraint(Sketcher.Constraint("DistanceY", -1, 1, 0, 3, 12.5))
sketch11.setExpression("Constraints[1]", "Params.sketch11_diameter")
pocket8 = body.newObject("PartDesign::Pocket", "Pocket007")
pocket8.Profile = sketch11
pocket8.Type = "ThroughAll"
pocket8.Reversed = True

# Sketch on XY plane
sketch12 = body.newObject("Sketcher::SketchObject", "Sketch011")
sketch12.AttachmentSupport = (doc.getObject("XY_Plane"), [""])
sketch12.MapMode = "FlatFace"
sketch12.addGeometry(Part.LineSegment(App.Vector(-16, 22, 0), App.Vector(-16, -22, 0)), False)
sketch12.addGeometry(Part.LineSegment(App.Vector(-16, -22, 0), App.Vector(-38, -22, 0)), False)
sketch12.addGeometry(Part.LineSegment(App.Vector(-38, -22, 0), App.Vector(-38, 22, 0)), False)
sketch12.addGeometry(Part.LineSegment(App.Vector(-38, 22, 0), App.Vector(-16, 22, 0)), False)
sketch12.addConstraint(Sketcher.Constraint("Coincident", 0, 2, 1, 1))
sketch12.addConstraint(Sketcher.Constraint("Coincident", 1, 2, 2, 1))
sketch12.addConstraint(Sketcher.Constraint("Coincident", 2, 2, 3, 1))
sketch12.addConstraint(Sketcher.Constraint("Coincident", 3, 2, 0, 1))
sketch12.addConstraint(Sketcher.Constraint("Vertical", 0))
sketch12.addConstraint(Sketcher.Constraint("Horizontal", 1))
sketch12.addConstraint(Sketcher.Constraint("Vertical", 2))
sketch12.addConstraint(Sketcher.Constraint("Horizontal", 3))
sketch12.addConstraint(Sketcher.Constraint("DistanceX", 1, 2, 1, 1, 22.0))
sketch12.addConstraint(Sketcher.Constraint("DistanceY", 0, 2, 0, 1, 43.0))
sketch12.addConstraint(Sketcher.Constraint("DistanceX", 0, 2, -1, 1, 16.0))
sketch12.addConstraint(Sketcher.Constraint("DistanceY", 0, 2, -1, 1, 21.5))
sketch12.setExpression("Constraints[8]", "Params.sketch12_width")
sketch12.setExpression("Constraints[9]", "Params.sketch12_height")
pocket9 = body.newObject("PartDesign::Pocket", "Pocket008")
pocket9.Profile = sketch12
pocket9.setExpression("Length", "Params.pocket9_length")
pocket9.Reversed = True

doc.recompute()
